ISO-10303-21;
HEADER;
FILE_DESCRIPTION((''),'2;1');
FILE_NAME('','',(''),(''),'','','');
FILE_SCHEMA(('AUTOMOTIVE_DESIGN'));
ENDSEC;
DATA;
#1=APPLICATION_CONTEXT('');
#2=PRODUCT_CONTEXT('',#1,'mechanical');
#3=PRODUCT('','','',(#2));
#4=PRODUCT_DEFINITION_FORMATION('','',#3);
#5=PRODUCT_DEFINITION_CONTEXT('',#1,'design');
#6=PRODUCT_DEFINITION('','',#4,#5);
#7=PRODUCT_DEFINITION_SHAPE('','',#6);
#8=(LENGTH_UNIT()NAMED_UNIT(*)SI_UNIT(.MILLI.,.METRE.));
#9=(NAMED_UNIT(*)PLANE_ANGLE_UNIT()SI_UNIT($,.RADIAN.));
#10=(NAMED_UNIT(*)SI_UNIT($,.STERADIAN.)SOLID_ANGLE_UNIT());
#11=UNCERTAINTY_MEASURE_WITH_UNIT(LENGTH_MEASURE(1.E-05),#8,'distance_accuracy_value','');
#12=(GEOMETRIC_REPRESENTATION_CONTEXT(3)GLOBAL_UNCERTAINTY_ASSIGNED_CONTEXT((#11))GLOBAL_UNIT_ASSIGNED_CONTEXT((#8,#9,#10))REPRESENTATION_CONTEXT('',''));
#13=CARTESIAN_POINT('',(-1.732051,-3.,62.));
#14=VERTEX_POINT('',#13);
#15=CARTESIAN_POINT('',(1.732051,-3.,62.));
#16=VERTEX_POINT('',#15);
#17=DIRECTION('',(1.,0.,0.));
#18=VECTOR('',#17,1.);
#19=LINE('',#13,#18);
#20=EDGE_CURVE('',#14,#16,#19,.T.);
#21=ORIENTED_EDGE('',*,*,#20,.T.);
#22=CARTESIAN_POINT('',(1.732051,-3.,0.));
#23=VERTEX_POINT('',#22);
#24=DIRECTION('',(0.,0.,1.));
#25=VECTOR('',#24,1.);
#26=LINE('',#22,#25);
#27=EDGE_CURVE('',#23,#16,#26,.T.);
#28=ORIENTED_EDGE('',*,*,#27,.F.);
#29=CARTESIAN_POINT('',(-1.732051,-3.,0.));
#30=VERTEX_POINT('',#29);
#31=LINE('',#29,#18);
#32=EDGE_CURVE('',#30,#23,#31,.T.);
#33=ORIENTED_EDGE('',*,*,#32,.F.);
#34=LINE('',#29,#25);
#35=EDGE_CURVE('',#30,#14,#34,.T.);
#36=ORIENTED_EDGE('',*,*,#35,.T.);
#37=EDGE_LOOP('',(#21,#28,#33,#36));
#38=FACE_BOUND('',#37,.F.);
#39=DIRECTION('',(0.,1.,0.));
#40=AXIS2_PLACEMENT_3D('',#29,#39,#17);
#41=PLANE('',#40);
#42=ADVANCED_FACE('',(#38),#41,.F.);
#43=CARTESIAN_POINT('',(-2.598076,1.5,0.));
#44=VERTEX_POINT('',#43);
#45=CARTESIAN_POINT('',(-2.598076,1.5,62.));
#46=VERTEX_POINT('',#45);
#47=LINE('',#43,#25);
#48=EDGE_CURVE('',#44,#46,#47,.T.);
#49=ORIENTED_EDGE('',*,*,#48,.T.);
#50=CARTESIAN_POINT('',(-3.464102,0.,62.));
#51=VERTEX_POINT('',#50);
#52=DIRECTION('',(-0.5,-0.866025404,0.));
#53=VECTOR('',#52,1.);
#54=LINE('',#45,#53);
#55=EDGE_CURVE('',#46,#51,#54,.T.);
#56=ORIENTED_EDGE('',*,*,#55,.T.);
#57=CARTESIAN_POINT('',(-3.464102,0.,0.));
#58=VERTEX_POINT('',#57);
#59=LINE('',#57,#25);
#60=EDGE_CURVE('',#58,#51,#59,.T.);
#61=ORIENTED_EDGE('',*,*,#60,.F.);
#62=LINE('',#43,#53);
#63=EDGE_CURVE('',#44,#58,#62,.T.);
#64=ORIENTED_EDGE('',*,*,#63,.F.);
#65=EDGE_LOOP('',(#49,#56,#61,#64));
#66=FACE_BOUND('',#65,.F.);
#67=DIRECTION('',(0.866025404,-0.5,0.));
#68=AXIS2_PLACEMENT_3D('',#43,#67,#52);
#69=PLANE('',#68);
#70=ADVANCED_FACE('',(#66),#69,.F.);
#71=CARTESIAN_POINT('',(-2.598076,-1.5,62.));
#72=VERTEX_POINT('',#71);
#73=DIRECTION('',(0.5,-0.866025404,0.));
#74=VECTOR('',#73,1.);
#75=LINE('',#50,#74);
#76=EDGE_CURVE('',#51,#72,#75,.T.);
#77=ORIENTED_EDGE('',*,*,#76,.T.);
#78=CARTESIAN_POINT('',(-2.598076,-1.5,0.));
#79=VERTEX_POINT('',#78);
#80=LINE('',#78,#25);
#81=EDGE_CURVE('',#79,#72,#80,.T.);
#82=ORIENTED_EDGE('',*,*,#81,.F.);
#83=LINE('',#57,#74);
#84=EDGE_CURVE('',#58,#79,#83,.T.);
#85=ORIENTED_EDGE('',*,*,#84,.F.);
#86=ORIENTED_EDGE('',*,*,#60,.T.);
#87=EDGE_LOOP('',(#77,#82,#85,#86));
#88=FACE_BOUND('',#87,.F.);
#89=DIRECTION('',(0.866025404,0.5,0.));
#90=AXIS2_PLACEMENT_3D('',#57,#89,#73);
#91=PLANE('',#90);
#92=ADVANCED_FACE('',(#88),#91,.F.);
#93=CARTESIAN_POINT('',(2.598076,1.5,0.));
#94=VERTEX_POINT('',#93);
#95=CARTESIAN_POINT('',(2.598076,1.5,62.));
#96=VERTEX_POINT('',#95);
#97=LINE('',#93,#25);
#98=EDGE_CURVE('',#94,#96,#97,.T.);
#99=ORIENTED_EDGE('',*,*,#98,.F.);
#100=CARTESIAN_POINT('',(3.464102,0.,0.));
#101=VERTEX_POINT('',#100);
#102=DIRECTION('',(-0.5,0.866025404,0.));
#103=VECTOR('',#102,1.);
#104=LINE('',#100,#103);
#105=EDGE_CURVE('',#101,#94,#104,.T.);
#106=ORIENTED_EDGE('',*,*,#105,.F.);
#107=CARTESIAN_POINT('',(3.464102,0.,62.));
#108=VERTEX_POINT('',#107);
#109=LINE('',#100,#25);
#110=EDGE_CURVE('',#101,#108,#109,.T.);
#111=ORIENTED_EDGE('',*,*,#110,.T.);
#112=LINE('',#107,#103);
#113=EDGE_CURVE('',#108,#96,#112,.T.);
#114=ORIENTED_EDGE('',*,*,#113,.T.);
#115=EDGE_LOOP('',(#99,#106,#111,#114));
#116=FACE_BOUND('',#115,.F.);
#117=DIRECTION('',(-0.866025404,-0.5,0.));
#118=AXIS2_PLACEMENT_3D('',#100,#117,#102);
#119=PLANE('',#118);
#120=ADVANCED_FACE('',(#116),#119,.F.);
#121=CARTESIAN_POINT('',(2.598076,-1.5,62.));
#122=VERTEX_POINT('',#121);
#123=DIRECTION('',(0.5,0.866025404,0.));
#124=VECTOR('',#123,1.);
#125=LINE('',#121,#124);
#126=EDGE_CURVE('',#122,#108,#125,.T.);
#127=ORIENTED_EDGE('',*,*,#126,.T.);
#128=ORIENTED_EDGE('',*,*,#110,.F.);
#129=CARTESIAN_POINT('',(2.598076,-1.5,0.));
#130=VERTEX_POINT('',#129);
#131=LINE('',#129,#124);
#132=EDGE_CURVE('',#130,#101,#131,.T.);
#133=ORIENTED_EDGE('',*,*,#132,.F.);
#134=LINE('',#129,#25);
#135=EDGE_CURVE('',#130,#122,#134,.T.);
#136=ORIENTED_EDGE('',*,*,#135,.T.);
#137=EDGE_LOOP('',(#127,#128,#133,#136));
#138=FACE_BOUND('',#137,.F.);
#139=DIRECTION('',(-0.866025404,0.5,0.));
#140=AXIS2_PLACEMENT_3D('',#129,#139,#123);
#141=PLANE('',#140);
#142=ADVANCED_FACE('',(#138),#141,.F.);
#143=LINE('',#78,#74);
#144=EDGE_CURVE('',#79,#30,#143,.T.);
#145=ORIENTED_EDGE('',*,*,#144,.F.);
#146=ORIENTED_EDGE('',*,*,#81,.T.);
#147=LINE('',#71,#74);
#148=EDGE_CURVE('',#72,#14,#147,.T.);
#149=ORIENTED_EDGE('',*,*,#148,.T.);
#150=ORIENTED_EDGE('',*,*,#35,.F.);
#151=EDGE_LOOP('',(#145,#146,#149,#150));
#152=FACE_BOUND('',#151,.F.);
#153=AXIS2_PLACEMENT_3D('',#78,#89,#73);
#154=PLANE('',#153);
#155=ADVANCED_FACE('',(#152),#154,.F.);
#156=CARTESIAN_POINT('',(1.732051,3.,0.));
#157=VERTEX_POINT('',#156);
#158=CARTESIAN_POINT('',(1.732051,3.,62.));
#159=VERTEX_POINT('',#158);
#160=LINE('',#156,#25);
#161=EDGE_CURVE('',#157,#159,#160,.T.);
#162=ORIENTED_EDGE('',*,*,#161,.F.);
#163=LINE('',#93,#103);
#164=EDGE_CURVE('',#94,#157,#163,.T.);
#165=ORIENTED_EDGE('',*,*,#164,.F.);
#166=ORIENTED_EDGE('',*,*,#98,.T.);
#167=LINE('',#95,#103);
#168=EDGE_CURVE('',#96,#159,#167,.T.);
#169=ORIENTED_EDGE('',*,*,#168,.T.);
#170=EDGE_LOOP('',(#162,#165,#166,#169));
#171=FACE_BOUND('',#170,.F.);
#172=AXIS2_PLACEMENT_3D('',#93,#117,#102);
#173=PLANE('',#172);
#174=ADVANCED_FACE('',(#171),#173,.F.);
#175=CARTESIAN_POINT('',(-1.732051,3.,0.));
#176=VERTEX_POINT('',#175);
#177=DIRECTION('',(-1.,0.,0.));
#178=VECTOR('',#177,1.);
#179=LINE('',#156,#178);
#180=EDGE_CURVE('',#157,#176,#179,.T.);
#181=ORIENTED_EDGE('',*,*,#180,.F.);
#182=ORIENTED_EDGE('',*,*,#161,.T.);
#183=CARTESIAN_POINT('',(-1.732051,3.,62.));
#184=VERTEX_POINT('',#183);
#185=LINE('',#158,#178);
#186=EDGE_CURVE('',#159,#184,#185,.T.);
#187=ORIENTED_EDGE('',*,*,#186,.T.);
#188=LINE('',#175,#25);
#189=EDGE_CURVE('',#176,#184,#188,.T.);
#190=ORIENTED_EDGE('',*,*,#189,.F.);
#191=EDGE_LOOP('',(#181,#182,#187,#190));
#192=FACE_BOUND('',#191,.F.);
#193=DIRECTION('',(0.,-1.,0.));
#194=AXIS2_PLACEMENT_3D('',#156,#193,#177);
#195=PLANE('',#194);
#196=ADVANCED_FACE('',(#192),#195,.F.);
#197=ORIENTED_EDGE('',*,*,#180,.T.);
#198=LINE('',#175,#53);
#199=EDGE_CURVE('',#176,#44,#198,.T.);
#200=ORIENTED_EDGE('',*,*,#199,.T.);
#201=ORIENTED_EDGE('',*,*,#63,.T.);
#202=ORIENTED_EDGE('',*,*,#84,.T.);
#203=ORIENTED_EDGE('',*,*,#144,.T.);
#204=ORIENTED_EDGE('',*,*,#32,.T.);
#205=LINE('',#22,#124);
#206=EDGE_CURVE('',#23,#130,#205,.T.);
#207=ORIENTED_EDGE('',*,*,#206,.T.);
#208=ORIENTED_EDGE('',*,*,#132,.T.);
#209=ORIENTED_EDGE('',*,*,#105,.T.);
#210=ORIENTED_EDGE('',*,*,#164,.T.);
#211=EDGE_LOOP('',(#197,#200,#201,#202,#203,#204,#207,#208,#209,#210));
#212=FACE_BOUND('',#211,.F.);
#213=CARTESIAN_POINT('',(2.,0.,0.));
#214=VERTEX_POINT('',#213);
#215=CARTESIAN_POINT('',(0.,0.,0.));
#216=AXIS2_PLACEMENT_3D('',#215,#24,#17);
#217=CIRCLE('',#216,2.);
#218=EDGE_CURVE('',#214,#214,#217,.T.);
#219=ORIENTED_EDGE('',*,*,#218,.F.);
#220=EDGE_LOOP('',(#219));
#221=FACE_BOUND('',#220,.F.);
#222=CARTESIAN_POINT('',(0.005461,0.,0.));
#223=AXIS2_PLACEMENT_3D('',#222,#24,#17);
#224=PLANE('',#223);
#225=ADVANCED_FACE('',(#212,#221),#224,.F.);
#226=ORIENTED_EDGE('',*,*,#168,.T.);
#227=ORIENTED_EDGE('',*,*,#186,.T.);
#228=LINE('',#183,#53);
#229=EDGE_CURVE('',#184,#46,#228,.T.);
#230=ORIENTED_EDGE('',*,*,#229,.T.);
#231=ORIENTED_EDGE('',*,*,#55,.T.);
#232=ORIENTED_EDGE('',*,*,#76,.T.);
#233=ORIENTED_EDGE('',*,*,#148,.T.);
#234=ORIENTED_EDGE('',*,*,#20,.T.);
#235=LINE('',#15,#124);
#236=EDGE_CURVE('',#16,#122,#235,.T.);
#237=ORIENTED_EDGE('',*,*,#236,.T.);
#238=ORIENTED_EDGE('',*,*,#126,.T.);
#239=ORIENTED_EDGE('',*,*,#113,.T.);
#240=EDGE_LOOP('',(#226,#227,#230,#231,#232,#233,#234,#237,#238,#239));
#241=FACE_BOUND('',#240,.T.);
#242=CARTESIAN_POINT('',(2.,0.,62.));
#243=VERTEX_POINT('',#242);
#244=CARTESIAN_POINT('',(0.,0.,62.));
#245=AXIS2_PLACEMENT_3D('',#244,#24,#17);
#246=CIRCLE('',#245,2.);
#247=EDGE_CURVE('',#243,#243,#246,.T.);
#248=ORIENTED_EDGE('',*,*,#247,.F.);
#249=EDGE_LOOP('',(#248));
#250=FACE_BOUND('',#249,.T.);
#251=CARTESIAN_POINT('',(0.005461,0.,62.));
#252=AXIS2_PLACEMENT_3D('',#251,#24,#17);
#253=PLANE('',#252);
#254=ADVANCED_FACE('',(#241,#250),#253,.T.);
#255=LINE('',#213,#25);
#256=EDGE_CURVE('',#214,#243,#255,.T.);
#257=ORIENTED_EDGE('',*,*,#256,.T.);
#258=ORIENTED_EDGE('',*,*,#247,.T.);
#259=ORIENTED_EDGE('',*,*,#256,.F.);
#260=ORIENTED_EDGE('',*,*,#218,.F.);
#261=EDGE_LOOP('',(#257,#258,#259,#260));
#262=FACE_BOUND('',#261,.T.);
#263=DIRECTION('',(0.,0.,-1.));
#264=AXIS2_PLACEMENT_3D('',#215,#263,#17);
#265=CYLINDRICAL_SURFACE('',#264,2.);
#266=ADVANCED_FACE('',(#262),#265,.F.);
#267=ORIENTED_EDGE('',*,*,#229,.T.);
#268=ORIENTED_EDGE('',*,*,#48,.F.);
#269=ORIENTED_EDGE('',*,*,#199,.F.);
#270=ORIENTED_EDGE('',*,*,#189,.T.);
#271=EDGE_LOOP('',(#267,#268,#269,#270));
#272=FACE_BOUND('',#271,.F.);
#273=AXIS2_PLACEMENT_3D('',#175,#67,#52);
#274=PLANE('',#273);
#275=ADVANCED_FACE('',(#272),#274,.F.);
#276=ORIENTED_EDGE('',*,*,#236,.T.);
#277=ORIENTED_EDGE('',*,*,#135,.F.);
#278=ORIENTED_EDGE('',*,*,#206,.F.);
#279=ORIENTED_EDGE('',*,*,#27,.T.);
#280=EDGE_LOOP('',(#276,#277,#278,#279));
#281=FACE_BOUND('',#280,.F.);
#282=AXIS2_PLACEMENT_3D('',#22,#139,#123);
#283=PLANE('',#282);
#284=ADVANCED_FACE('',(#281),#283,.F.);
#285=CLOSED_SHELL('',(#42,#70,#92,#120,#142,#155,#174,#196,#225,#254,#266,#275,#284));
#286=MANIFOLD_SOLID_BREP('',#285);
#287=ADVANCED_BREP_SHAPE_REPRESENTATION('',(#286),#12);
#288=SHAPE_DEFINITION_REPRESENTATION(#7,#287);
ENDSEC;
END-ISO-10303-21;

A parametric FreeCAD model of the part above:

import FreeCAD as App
import Part
import Sketcher

V = App.Vector
Q = App.Units.Quantity

doc = App.newDocument("Part")
body = doc.addObject("PartDesign::Body", "Body")

sketch1 = body.newObject("Sketcher::SketchObject", "Sketch")
sketch1.AttachmentSupport = (doc.getObject("XY_Plane"), [""])
sketch1.MapMode = "FlatFace"
sketch1.addGeometry(Part.LineSegment(V(2.6, -1.5, 0), V(3.5, 0, 0)), False)
sketch1.addGeometry(Part.LineSegment(V(3.5, 0, 0), V(2.6, 1.5, 0)), False)
sketch1.addGeometry(Part.LineSegment(V(2.6, 1.5, 0), V(1.7, 3, 0)), False)
sketch1.addGeometry(Part.LineSegment(V(1.7, 3, 0), V(-1.7, 3, 0)), False)
sketch1.addGeometry(Part.LineSegment(V(-1.7, 3, 0), V(-2.6, 1.5, 0)), False)
sketch1.addGeometry(Part.LineSegment(V(-2.6, 1.5, 0), V(-3.5, 0, 0)), False)
sketch1.addGeometry(Part.LineSegment(V(-3.5, 0, 0), V(-2.6, -1.5, 0)), False)
sketch1.addGeometry(Part.LineSegment(V(-2.6, -1.5, 0), V(-1.7, -3, 0)), False)
sketch1.addGeometry(Part.LineSegment(V(-1.7, -3, 0), V(1.7, -3, 0)), False)
sketch1.addGeometry(Part.LineSegment(V(1.7, -3, 0), V(2.6, -1.5, 0)), False)
sketch1.addGeometry(Part.Circle(V(0, 0, 0), V(0, 0, 1), 2), False)
sketch1.addConstraint(Sketcher.Constraint("Coincident", 0, 2, 1, 1))
sketch1.addConstraint(Sketcher.Constraint("Coincident", 1, 2, 2, 1))
sketch1.addConstraint(Sketcher.Constraint("Coincident", 2, 2, 3, 1))
sketch1.addConstraint(Sketcher.Constraint("Coincident", 3, 2, 4, 1))
sketch1.addConstraint(Sketcher.Constraint("Coincident", 4, 2, 5, 1))
sketch1.addConstraint(Sketcher.Constraint("Coincident", 5, 2, 6, 1))
sketch1.addConstraint(Sketcher.Constraint("Coincident", 6, 2, 7, 1))
sketch1.addConstraint(Sketcher.Constraint("Coincident", 7, 2, 8, 1))
sketch1.addConstraint(Sketcher.Constraint("Coincident", 8, 2, 9, 1))
sketch1.addConstraint(Sketcher.Constraint("Coincident", 9, 2, 0, 1))
sketch1.addConstraint(Sketcher.Constraint("Horizontal", 3))
sketch1.addConstraint(Sketcher.Constraint("Horizontal", 8))
sketch1.addConstraint(Sketcher.Constraint("Coincident", 10, 3, -1, 1))
sketch1.addConstraint(Sketcher.Constraint("Symmetric", 0, 2, 5, 2, -1, 1))
sketch1.addConstraint(Sketcher.Constraint("Symmetric", 1, 2, 6, 2, -1, 1))
sketch1.addConstraint(Sketcher.Constraint("Symmetric", 2, 2, 7, 2, -1, 1))
sketch1.addConstraint(Sketcher.Constraint("Symmetric", 4, 2, 9, 2, -1, 1))
sketch1.addConstraint(Sketcher.Constraint("Symmetric", 1, 2, 4, 2, -2))
sketch1.addConstraint(Sketcher.Constraint("PointOnObject", 0, 2, -1))
sketch1.addConstraint(Sketcher.Constraint("Parallel", 1, 2))
sketch1.addConstraint(Sketcher.Constraint("Parallel", 0, 4))
sketch1.addConstraint(Sketcher.Constraint("Parallel", 5, 9))
sketch1.addConstraint(Sketcher.Constraint("Equal", 1, 2))
sketch1.addConstraint(Sketcher.Constraint("Diameter", 10, 4.0))
sketch1.addConstraint(Sketcher.Constraint("Angle", 0, Q("60 deg")))
sketch1.addConstraint(Sketcher.Constraint("DistanceY", -1, 1, 2, 2, 3.0))
sketch1.addConstraint(Sketcher.Constraint("DistanceX", 3, 2, 3, 1, 3.464102))
pad1 = body.newObject("PartDesign::Pad", "Pad")
pad1.Profile = sketch1
pad1.Length = 62

doc.recompute()
